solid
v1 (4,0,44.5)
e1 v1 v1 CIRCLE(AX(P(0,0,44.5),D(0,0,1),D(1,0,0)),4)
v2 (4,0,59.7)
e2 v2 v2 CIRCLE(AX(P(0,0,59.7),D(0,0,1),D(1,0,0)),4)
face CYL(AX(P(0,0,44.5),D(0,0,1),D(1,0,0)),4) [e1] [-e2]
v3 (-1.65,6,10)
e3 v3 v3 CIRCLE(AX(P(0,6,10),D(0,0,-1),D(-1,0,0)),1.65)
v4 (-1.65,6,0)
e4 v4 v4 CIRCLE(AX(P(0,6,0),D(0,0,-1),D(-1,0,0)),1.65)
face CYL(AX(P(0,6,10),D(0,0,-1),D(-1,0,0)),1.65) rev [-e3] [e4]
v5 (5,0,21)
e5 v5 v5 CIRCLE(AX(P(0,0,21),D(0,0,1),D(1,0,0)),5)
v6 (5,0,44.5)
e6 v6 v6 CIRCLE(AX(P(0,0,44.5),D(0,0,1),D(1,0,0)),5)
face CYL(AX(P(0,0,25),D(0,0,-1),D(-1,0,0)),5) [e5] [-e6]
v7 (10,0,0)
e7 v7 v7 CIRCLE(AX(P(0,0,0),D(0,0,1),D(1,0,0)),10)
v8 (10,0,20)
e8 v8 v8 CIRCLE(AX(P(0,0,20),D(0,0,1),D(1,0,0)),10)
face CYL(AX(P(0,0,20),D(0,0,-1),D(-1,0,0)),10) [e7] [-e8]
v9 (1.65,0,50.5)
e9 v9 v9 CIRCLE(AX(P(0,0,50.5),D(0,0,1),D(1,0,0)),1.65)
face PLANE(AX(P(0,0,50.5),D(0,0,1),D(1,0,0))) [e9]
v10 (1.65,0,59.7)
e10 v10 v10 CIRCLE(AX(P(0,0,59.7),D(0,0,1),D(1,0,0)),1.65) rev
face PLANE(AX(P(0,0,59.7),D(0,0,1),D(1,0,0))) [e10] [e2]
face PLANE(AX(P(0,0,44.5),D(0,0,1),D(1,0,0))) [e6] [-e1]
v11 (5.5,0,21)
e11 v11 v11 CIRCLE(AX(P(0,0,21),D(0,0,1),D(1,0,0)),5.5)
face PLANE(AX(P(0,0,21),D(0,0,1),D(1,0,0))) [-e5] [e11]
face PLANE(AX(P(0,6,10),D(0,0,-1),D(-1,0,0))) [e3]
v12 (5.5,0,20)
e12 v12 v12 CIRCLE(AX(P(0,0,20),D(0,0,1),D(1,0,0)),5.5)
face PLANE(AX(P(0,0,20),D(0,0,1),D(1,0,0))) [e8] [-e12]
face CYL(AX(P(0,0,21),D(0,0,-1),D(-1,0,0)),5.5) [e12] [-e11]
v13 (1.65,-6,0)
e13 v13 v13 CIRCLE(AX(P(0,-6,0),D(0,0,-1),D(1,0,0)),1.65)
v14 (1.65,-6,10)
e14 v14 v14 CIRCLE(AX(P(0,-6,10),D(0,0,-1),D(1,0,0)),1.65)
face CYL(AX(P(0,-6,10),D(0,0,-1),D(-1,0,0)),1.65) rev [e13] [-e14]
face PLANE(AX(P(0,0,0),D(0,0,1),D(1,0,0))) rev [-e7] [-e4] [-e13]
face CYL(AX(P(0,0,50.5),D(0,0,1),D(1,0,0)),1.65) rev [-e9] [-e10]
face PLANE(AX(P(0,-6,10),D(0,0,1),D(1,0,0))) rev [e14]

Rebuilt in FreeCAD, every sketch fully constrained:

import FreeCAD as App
import Part
import Sketcher

V = App.Vector
Q = App.Units.Quantity

doc = App.newDocument("Part")
body = doc.addObject("PartDesign::Body", "Body")

# Sketch on XY plane
sketch1 = doc.addObject("Sketcher::SketchObject", "Sketch")
body.addObject(sketch1)
sketch1.AttachmentSupport = (doc.XY_Plane, [""])
sketch1.MapMode = "FlatFace"
sketch1.addGeometry(Part.Circle(V(0, 0, 0), V(0, 0, 1), 10), False)
sketch1.addConstraint(Sketcher.Constraint("Coincident", 0, 3, -1, 1))
sketch1.addConstraint(Sketcher.Constraint("Diameter", 0, Q("20 mm")))
pad1 = doc.addObject("PartDesign::Pad", "Pad")
body.addObject(pad1)
pad1.Profile = sketch1
pad1.Length = 20

# Sketch on XY plane
sketch2 = doc.addObject("Sketcher::SketchObject", "Sketch001")
body.addObject(sketch2)
sketch2.AttachmentSupport = (doc.XY_Plane, [""])
sketch2.MapMode = "FlatFace"
sketch2.AttachmentOffset = App.Placement(V(0, 0, 20), App.Rotation())
sketch2.addGeometry(Part.Circle(V(0, 0, 0), V(0, 0, 1), 5), False)
sketch2.addConstraint(Sketcher.Constraint("Coincident", 0, 3, -1, 1))
sketch2.addConstraint(Sketcher.Constraint("Diameter", 0, Q("10 mm")))
pad2 = doc.addObject("PartDesign::Pad", "Pad001")
body.addObject(pad2)
pad2.Profile = sketch2
pad2.Length = 5

# Sketch on XY plane
sketch3 = doc.addObject("Sketcher::SketchObject", "Sketch002")
body.addObject(sketch3)
sketch3.AttachmentSupport = (doc.XY_Plane, [""])
sketch3.MapMode = "FlatFace"
sketch3.AttachmentOffset = App.Placement(V(0, 0, 20), App.Rotation())
sketch3.addGeometry(Part.Circle(V(0, 0, 0), V(0, 0, 1), 5.5), False)
sketch3.addGeometry(Part.Circle(V(0, 0, 0), V(0, 0, 1), 5), False)
sketch3.addConstraint(Sketcher.Constraint("Coincident", 0, 3, -1, 1))
sketch3.addConstraint(Sketcher.Constraint("Coincident", 1, 3, -1, 1))
sketch3.addConstraint(Sketcher.Constraint("Diameter", 0, Q("11 mm")))
sketch3.addConstraint(Sketcher.Constraint("Diameter", 1, Q("10 mm")))
pad3 = doc.addObject("PartDesign::Pad", "Pad002")
body.addObject(pad3)
pad3.Profile = sketch3
pad3.Length = 1

# Sketch on XY plane
sketch4 = doc.addObject("Sketcher::SketchObject", "Sketch003")
body.addObject(sketch4)
sketch4.AttachmentSupport = (doc.XY_Plane, [""])
sketch4.MapMode = "FlatFace"
sketch4.addGeometry(Part.Circle(V(0, 6, 0), V(0, 0, 1), 1.65), False)
sketch4.addGeometry(Part.Circle(V(0, -6, 0), V(0, 0, 1), 1.65), False)
sketch4.addConstraint(Sketcher.Constraint("Equal", 0, 1))
sketch4.addConstraint(Sketcher.Constraint("Symmetric", 0, 3, 1, 3, -1, 1))
sketch4.addConstraint(Sketcher.Constraint("PointOnObject", 0, 3, -2))
sketch4.addConstraint(Sketcher.Constraint("Diameter", 0, Q("3.3 mm")))
sketch4.addConstraint(Sketcher.Constraint("DistanceY", -1, 1, 0, 3, Q("6 mm")))
pocket1 = doc.addObject("PartDesign::Pocket", "Pocket")
body.addObject(pocket1)
pocket1.Profile = sketch4
pocket1.Length = 10
pocket1.Reversed = True

# Sketch on XY plane
sketch5 = doc.addObject("Sketcher::SketchObject", "Sketch004")
body.addObject(sketch5)
sketch5.AttachmentSupport = (doc.XY_Plane, [""])
sketch5.MapMode = "FlatFace"
sketch5.AttachmentOffset = App.Placement(V(0, 0, 25), App.Rotation())
sketch5.addGeometry(Part.Circle(V(0, 0, 0), V(0, 0, 1), 5), False)
sketch5.addConstraint(Sketcher.Constraint("Coincident", 0, 3, -1, 1))
sketch5.addConstraint(Sketcher.Constraint("Diameter", 0, Q("10 mm")))
pad4 = doc.addObject("PartDesign::Pad", "Pad003")
body.addObject(pad4)
pad4.Profile = sketch5
pad4.Length = 35.5

# Sketch on XY plane
sketch6 = doc.addObject("Sketcher::SketchObject", "Sketch005")
body.addObject(sketch6)
sketch6.AttachmentSupport = (doc.XY_Plane, [""])
sketch6.MapMode = "FlatFace"
sketch6.AttachmentOffset = App.Placement(V(0, 0, 60.5), App.Rotation())
sketch6.addGeometry(Part.LineSegment(V(-17.679, 17.679, 0), V(-17.679, -17.679, 0)), False)
sketch6.addGeometry(Part.LineSegment(V(-17.679, -17.679, 0), V(17.679, -17.679, 0)), False)
sketch6.addGeometry(Part.LineSegment(V(17.679, -17.679, 0), V(17.679, 17.679, 0)), False)
sketch6.addGeometry(Part.LineSegment(V(17.679, 17.679, 0), V(-17.679, 17.679, 0)), False)
sketch6.addGeometry(Part.Circle(V(0, 0, 0), V(0, 0, 1), 4), False)
sketch6.addConstraint(Sketcher.Constraint("Coincident", 0, 2, 1, 1))
sketch6.addConstraint(Sketcher.Constraint("Coincident", 1, 2, 2, 1))
sketch6.addConstraint(Sketcher.Constraint("Coincident", 2, 2, 3, 1))
sketch6.addConstraint(Sketcher.Constraint("Coincident", 3, 2, 0, 1))
sketch6.addConstraint(Sketcher.Constraint("Vertical", 0))
sketch6.addConstraint(Sketcher.Constraint("Horizontal", 1))
sketch6.addConstraint(Sketcher.Constraint("Vertical", 2))
sketch6.addConstraint(Sketcher.Constraint("Horizontal", 3))
sketch6.addConstraint(Sketcher.Constraint("Coincident", 4, 3, -1, 1))
sketch6.addConstraint(Sketcher.Constraint("Symmetric", 0, 2, 2, 2, -1, 1))
sketch6.addConstraint(Sketcher.Constraint("Equal", 3, 0))
sketch6.addConstraint(Sketcher.Constraint("Diameter", 4, Q("8 mm")))
sketch6.addConstraint(Sketcher.Constraint("DistanceX", 1, 1, 1, 2, Q("35.358 mm")))
pocket2 = doc.addObject("PartDesign::Pocket", "Pocket001")
body.addObject(pocket2)
pocket2.Profile = sketch6
pocket2.Length = 16

# Sketch on XY plane
sketch7 = doc.addObject("Sketcher::SketchObject", "Sketch006")
body.addObject(sketch7)
sketch7.AttachmentSupport = (doc.XY_Plane, [""])
sketch7.MapMode = "FlatFace"
sketch7.AttachmentOffset = App.Placement(V(0, 0, 60.5), App.Rotation())
sketch7.addGeometry(Part.Circle(V(0, 0, 0), V(0, 0, 1), 1.65), False)
sketch7.addConstraint(Sketcher.Constraint("Coincident", 0, 3, -1, 1))
sketch7.addConstraint(Sketcher.Constraint("Diameter", 0, Q("3.3 mm")))
pocket3 = doc.addObject("PartDesign::Pocket", "Pocket002")
body.addObject(pocket3)
pocket3.Profile = sketch7
pocket3.Length = 10

# Sketch on XY plane
sketch8 = doc.addObject("Sketcher::SketchObject", "Sketch007")
body.addObject(sketch8)
sketch8.AttachmentSupport = (doc.XY_Plane, [""])
sketch8.MapMode = "FlatFace"
sketch8.AttachmentOffset = App.Placement(V(0, 0, 60.5), App.Rotation())
sketch8.addGeometry(Part.Circle(V(0, 0, 0), V(0, 0, 1), 4), False)
sketch8.addConstraint(Sketcher.Constraint("Coincident", 0, 3, -1, 1))
sketch8.addConstraint(Sketcher.Constraint("Diameter", 0, Q("8 mm")))
pocket4 = doc.addObject("PartDesign::Pocket", "Pocket003")
body.addObject(pocket4)
pocket4.Profile = sketch8
pocket4.Length = 0.8

doc.recompute()
